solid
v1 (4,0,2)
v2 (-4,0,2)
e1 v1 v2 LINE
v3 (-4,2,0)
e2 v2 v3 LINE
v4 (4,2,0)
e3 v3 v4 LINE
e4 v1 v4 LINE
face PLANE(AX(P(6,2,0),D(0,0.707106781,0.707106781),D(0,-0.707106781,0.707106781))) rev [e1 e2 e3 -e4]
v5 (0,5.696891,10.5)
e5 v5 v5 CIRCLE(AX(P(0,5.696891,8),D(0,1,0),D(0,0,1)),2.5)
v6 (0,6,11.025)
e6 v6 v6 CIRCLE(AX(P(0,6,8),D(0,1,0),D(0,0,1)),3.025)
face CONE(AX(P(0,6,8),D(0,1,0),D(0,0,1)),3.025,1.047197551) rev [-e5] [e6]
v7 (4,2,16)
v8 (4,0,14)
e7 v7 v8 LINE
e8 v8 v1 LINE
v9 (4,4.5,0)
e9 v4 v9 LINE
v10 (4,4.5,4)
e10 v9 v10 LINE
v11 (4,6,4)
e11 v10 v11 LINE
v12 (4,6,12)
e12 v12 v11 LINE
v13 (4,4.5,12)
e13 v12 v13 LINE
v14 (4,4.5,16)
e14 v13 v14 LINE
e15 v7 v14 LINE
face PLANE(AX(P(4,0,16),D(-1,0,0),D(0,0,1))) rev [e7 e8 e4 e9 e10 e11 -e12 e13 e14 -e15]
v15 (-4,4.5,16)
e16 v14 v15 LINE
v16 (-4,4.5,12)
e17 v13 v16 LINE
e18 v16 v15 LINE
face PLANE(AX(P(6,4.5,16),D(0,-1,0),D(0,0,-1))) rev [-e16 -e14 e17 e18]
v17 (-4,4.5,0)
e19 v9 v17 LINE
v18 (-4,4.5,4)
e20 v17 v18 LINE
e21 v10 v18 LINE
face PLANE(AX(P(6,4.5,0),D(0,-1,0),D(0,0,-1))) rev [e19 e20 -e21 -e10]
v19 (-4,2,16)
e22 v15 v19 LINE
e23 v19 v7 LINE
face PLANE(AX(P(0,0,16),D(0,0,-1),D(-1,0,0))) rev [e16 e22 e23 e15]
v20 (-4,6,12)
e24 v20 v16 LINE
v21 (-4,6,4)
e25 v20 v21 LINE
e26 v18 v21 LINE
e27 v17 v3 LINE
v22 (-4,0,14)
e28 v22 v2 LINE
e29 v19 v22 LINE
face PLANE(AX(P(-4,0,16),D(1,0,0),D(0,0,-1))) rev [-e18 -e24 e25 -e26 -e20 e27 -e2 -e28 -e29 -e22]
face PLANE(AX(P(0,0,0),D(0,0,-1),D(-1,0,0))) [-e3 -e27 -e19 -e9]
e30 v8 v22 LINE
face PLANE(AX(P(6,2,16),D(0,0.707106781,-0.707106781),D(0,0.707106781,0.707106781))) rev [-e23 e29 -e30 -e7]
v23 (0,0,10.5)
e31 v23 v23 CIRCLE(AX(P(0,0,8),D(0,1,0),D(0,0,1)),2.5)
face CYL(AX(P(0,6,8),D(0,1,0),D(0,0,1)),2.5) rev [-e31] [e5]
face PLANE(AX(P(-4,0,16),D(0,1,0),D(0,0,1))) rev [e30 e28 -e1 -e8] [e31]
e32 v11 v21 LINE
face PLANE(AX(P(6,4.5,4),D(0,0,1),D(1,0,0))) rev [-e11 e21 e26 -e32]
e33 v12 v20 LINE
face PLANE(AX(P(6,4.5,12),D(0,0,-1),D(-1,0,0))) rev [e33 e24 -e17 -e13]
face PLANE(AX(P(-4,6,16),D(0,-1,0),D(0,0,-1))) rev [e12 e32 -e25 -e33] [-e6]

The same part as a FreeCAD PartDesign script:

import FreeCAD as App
import Part
import Sketcher
from FreeCAD import Vector

doc = App.newDocument("Part")
body = doc.addObject("PartDesign::Body", "Body")

sketch1 = body.newObject("Sketcher::SketchObject", "Sketch")
sketch1.AttachmentSupport = (doc.getObject("XY_Plane"), [""])
sketch1.MapMode = "FlatFace"
sketch1.addGeometry(Part.LineSegment(Vector(-4, 6, 0), Vector(-4, 0, 0)), False)
sketch1.addGeometry(Part.LineSegment(Vector(-4, 0, 0), Vector(4, 0, 0)), False)
sketch1.addGeometry(Part.LineSegment(Vector(4, 0, 0), Vector(4, 6, 0)), False)
sketch1.addGeometry(Part.LineSegment(Vector(4, 6, 0), Vector(-4, 6, 0)), False)
sketch1.addConstraint(Sketcher.Constraint("Coincident", 0, 2, 1, 1))
sketch1.addConstraint(Sketcher.Constraint("Coincident", 1, 2, 2, 1))
sketch1.addConstraint(Sketcher.Constraint("Coincident", 2, 2, 3, 1))
sketch1.addConstraint(Sketcher.Constraint("Coincident", 3, 2, 0, 1))
sketch1.addConstraint(Sketcher.Constraint("Vertical", 0))
sketch1.addConstraint(Sketcher.Constraint("Horizontal", 1))
sketch1.addConstraint(Sketcher.Constraint("Vertical", 2))
sketch1.addConstraint(Sketcher.Constraint("Horizontal", 3))
sketch1.addConstraint(Sketcher.Constraint("Symmetric", 0, 2, 1, 2, -1, 1))
sketch1.addConstraint(Sketcher.Constraint("DistanceX", 1, 1, 1, 2, 8.0))
sketch1.addConstraint(Sketcher.Constraint("DistanceY", 0, 2, 0, 1, 6.0))
pad1 = body.newObject("PartDesign::Pad", "Pad")
pad1.Profile = sketch1
pad1.Length = 16

sketch2 = body.newObject("Sketcher::SketchObject", "Sketch001")
sketch2.AttachmentSupport = (doc.getObject("XZ_Plane"), [""])
sketch2.MapMode = "FlatFace"
sketch2.AttachmentOffset = App.Placement(Vector(0, 0, -6), App.Rotation())
sketch2.addGeometry(Part.Circle(Vector(0, 8, 0), Vector(0, 0, 1), 2.5), False)
sketch2.addConstraint(Sketcher.Constraint("PointOnObject", 0, 3, -2))
sketch2.addConstraint(Sketcher.Constraint("Diameter", 0, 5.0))
sketch2.addConstraint(Sketcher.Constraint("DistanceY", -1, 1, 0, 3, 8.0))
doc.recompute()
hole = body.newObject("PartDesign::Hole", "Hole")
hole.Profile = sketch2
hole.ThreadType = "None"
hole.Diameter = 5
hole.DepthType = "ThroughAll"
hole.HoleCutType = "Countersink"
hole.HoleCutDiameter = 6.05
hole.HoleCutCountersinkAngle = 120
hole.Reversed = True

sketch3 = body.newObject("Sketcher::SketchObject", "Sketch002")
sketch3.AttachmentSupport = (doc.getObject("YZ_Plane"), [""])
sketch3.MapMode = "FlatFace"
sketch3.AttachmentOffset = App.Placement(Vector(0, 0, -4), App.Rotation())
sketch3.addGeometry(Part.LineSegment(Vector(2, 0, 0), Vector(0, 0, 0)), False)
sketch3.addGeometry(Part.LineSegment(Vector(0, 0, 0), Vector(0, 2, 0)), False)
sketch3.addGeometry(Part.LineSegment(Vector(0, 2, 0), Vector(2, 0, 0)), False)
sketch3.addGeometry(Part.LineSegment(Vector(0, 16, 0), Vector(2, 16, 0)), False)
sketch3.addGeometry(Part.LineSegment(Vector(2, 16, 0), Vector(0, 14, 0)), False)
sketch3.addGeometry(Part.LineSegment(Vector(0, 14, 0), Vector(0, 16, 0)), False)
sketch3.addGeometry(Part.LineSegment(Vector(6, 12, 0), Vector(4.5, 12, 0)), False)
sketch3.addGeometry(Part.LineSegment(Vector(4.5, 12, 0), Vector(4.5, 16, 0)), False)
sketch3.addGeometry(Part.LineSegment(Vector(4.5, 16, 0), Vector(6, 16, 0)), False)
sketch3.addGeometry(Part.LineSegment(Vector(6, 16, 0), Vector(6, 12, 0)), False)
sketch3.addGeometry(Part.LineSegment(Vector(6, 0, 0), Vector(4.5, 0, 0)), False)
sketch3.addGeometry(Part.LineSegment(Vector(4.5, 0, 0), Vector(4.5, 4, 0)), False)
sketch3.addGeometry(Part.LineSegment(Vector(4.5, 4, 0), Vector(6, 4, 0)), False)
sketch3.addGeometry(Part.LineSegment(Vector(6, 4, 0), Vector(6, 0, 0)), False)
sketch3.addConstraint(Sketcher.Constraint("Coincident", 0, 2, 1, 1))
sketch3.addConstraint(Sketcher.Constraint("Coincident", 1, 2, 2, 1))
sketch3.addConstraint(Sketcher.Constraint("Coincident", 2, 2, 0, 1))
sketch3.addConstraint(Sketcher.Constraint("Coincident", 3, 2, 4, 1))
sketch3.addConstraint(Sketcher.Constraint("Coincident", 4, 2, 5, 1))
sketch3.addConstraint(Sketcher.Constraint("Coincident", 5, 2, 3, 1))
sketch3.addConstraint(Sketcher.Constraint("Coincident", 6, 2, 7, 1))
sketch3.addConstraint(Sketcher.Constraint("Coincident", 7, 2, 8, 1))
sketch3.addConstraint(Sketcher.Constraint("Coincident", 8, 2, 9, 1))
sketch3.addConstraint(Sketcher.Constraint("Coincident", 9, 2, 6, 1))
sketch3.addConstraint(Sketcher.Constraint("Coincident", 10, 2, 11, 1))
sketch3.addConstraint(Sketcher.Constraint("Coincident", 11, 2, 12, 1))
sketch3.addConstraint(Sketcher.Constraint("Coincident", 12, 2, 13, 1))
sketch3.addConstraint(Sketcher.Constraint("Coincident", 13, 2, 10, 1))
sketch3.addConstraint(Sketcher.Constraint("Horizontal", 0))
sketch3.addConstraint(Sketcher.Constraint("Vertical", 1))
sketch3.addConstraint(Sketcher.Constraint("Horizontal", 3))
sketch3.addConstraint(Sketcher.Constraint("Vertical", 5))
sketch3.addConstraint(Sketcher.Constraint("Horizontal", 6))
sketch3.addConstraint(Sketcher.Constraint("Vertical", 7))
sketch3.addConstraint(Sketcher.Constraint("Horizontal", 8))
sketch3.addConstraint(Sketcher.Constraint("Vertical", 9))
sketch3.addConstraint(Sketcher.Constraint("Horizontal", 10))
sketch3.addConstraint(Sketcher.Constraint("Vertical", 11))
sketch3.addConstraint(Sketcher.Constraint("Horizontal", 12))
sketch3.addConstraint(Sketcher.Constraint("Vertical", 13))
sketch3.addConstraint(Sketcher.Constraint("Coincident", 0, 2, -1, 1))
sketch3.addConstraint(Sketcher.Constraint("PointOnObject", 4, 2, -2))
sketch3.addConstraint(Sketcher.Constraint("PointOnObject", 10, 2, -1))
sketch3.addConstraint(Sketcher.Constraint("Perpendicular", 2, 4))
sketch3.addConstraint(Sketcher.Constraint("Horizontal", 5, 2, 7, 2))
sketch3.addConstraint(Sketcher.Constraint("Vertical", 2, 2, 3, 2))
sketch3.addConstraint(Sketcher.Constraint("Vertical", 7, 2, 10, 2))
sketch3.addConstraint(Sketcher.Constraint("Vertical", 9, 2, 12, 2))
sketch3.addConstraint(Sketcher.Constraint("Equal", 3, 1))
sketch3.addConstraint(Sketcher.Constraint("Equal", 9, 11))
sketch3.addConstraint(Sketcher.Constraint("DistanceX", 0, 2, 0, 1, 2.0))
sketch3.addConstraint(Sketcher.Constraint("DistanceY", 7, 1, 7, 2, 4.0))
sketch3.addConstraint(Sketcher.Constraint("DistanceX", 6, 2, 6, 1, 1.5))
sketch3.addConstraint(Sketcher.Constraint("DistanceY", -1, 1, 3, 2, 16.0))
sketch3.addConstraint(Sketcher.Constraint("DistanceX", -1, 1, 8, 2, 6.0))
pocket1 = body.newObject("PartDesign::Pocket", "Pocket")
pocket1.Profile = sketch3
pocket1.Length = 10
pocket1.Reversed = True

doc.recompute()
